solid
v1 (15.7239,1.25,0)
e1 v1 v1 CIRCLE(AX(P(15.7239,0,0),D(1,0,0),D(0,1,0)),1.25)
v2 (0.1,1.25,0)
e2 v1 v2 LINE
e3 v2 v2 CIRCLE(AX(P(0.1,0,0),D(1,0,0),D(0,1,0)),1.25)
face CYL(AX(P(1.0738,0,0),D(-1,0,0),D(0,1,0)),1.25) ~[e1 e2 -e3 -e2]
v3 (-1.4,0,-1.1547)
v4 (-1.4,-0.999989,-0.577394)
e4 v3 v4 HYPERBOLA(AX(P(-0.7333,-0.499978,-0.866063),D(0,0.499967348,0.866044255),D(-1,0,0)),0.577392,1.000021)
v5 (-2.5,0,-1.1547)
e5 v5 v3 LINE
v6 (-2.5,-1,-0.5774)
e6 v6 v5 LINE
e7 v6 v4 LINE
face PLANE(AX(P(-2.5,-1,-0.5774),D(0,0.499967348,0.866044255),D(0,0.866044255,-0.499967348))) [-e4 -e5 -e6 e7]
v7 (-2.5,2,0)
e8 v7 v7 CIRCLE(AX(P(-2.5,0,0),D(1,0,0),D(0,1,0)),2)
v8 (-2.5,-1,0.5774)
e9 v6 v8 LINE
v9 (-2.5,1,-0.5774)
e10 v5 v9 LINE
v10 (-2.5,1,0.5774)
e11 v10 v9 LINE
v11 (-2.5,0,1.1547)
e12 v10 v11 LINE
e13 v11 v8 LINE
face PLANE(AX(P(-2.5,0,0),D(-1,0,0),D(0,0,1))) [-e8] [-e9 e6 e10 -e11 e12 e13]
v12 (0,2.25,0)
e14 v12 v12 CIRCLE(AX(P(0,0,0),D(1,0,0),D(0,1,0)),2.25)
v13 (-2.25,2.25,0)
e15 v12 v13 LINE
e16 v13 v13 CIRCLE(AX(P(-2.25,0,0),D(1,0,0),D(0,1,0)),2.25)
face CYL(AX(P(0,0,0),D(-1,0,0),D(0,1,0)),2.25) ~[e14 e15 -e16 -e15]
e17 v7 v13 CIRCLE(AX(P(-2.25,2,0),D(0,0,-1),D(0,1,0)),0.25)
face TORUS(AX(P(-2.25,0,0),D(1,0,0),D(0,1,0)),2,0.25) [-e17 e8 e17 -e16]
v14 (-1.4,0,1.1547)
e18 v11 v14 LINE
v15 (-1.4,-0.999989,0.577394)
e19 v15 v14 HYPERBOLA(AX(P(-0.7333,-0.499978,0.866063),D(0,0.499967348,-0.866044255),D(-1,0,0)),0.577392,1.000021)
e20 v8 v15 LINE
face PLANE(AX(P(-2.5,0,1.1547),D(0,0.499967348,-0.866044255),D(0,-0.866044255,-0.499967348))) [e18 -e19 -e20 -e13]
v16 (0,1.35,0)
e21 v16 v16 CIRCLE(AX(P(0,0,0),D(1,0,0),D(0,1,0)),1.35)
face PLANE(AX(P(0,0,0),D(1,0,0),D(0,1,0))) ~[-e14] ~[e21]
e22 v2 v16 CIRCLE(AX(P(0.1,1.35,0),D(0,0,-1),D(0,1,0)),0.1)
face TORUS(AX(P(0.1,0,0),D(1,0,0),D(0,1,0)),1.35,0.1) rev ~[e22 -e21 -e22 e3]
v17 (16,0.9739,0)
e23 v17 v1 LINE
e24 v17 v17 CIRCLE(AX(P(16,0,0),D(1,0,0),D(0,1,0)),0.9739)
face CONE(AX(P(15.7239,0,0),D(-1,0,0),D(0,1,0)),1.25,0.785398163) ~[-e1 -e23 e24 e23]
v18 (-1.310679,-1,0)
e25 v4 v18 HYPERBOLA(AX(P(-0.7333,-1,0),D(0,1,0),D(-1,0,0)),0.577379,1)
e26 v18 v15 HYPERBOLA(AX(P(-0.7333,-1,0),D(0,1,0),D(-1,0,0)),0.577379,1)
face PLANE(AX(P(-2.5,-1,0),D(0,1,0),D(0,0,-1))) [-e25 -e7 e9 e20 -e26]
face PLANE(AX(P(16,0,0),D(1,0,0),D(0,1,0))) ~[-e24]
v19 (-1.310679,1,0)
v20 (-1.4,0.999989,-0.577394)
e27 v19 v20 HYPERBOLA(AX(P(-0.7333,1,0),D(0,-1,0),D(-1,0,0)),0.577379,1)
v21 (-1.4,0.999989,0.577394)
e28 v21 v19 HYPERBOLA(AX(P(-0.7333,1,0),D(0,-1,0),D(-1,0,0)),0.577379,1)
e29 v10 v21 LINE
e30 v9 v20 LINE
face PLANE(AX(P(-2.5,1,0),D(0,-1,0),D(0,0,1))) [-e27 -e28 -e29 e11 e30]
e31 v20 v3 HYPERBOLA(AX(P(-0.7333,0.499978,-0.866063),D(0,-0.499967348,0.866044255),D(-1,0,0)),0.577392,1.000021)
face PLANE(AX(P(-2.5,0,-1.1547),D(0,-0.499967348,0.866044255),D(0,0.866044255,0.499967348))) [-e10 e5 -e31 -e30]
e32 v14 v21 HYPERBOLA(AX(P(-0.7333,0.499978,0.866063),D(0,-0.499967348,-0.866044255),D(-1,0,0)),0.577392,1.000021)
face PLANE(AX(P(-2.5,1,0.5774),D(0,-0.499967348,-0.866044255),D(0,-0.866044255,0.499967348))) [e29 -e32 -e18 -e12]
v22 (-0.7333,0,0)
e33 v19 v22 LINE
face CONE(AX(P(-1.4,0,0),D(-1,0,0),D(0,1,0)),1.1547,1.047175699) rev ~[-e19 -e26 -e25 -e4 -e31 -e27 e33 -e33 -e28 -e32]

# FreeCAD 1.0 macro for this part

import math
import FreeCAD as App
import Part
import Sketcher

V = App.Vector
Q = App.Units.Quantity


def edges_at(feature, points):
    """Names of the edges that pass closest to the given points."""
    edges = feature.Shape.Edges
    near = lambda p: min(range(len(edges)), key=lambda i: edges[i].distToShape(Part.Vertex(*p))[0])
    return sorted({f"Edge{near(p) + 1}" for p in points})

doc = App.newDocument("Part")
params = doc.addObject("Spreadsheet::Sheet", "Params")
for row, (alias, value) in enumerate([
    ("sketch1_width", "16 mm"),
    ("sketch1_width2", "2.5 mm"),
    ("sketch1_width3", "1.1 mm"),
    ("sketch1_height", "1 mm"),
    ("sketch1_height2", "1.25 mm"),
    ("revolution_angle", "360 deg"),
    ("fillet_radius", "0.25 mm"),
    ("chamfer_size", "0.2761 mm"),
    ("chamfer_size2", "0.2761 mm"),
    ("fillet2_radius", "0.1 mm"),
], start=1):
    params.set(f"A{row}", alias)
    params.set(f"B{row}", "=" + value)
    params.setAlias(f"B{row}", alias)

body = doc.addObject("PartDesign::Body", "Body")

sketch1 = doc.addObject("Sketcher::SketchObject", "Sketch")
body.addObject(sketch1)
sketch1.AttachmentSupport = (doc.XY_Plane, [""])
sketch1.MapMode = "FlatFace"
sketch1.addGeometry(Part.LineSegment(V(-1.4, 1.2, 0), V(-0.7, 0, 0)), False)
sketch1.addGeometry(Part.LineSegment(V(-0.7, 0, 0), V(16, 0, 0)), False)
sketch1.addGeometry(Part.LineSegment(V(16, 0, 0), V(16, 1.2, 0)), False)
sketch1.addGeometry(Part.LineSegment(V(16, 1.2, 0), V(0, 1.2, 0)), False)
sketch1.addGeometry(Part.LineSegment(V(0, 1.2, 0), V(0, 2.2, 0)), False)
sketch1.addGeometry(Part.LineSegment(V(0, 2.2, 0), V(-2.5, 2.2, 0)), False)
sketch1.addGeometry(Part.LineSegment(V(-2.5, 2.2, 0), V(-2.5, 1.2, 0)), False)
sketch1.addGeometry(Part.LineSegment(V(-2.5, 1.2, 0), V(-1.4, 1.2, 0)), False)
sketch1.addConstraint(Sketcher.Constraint("Coincident", 0, 2, 1, 1))
sketch1.addConstraint(Sketcher.Constraint("Coincident", 1, 2, 2, 1))
sketch1.addConstraint(Sketcher.Constraint("Coincident", 2, 2, 3, 1))
sketch1.addConstraint(Sketcher.Constraint("Coincident", 3, 2, 4, 1))
sketch1.addConstraint(Sketcher.Constraint("Coincident", 4, 2, 5, 1))
sketch1.addConstraint(Sketcher.Constraint("Coincident", 5, 2, 6, 1))
sketch1.addConstraint(Sketcher.Constraint("Coincident", 6, 2, 7, 1))
sketch1.addConstraint(Sketcher.Constraint("Coincident", 7, 2, 0, 1))
sketch1.addConstraint(Sketcher.Constraint("Horizontal", 1))
sketch1.addConstraint(Sketcher.Constraint("Vertical", 2))
sketch1.addConstraint(Sketcher.Constraint("Horizontal", 3))
sketch1.addConstraint(Sketcher.Constraint("Vertical", 4))
sketch1.addConstraint(Sketcher.Constraint("Horizontal", 5))
sketch1.addConstraint(Sketcher.Constraint("Vertical", 6))
sketch1.addConstraint(Sketcher.Constraint("Horizontal", 7))
sketch1.addConstraint(Sketcher.Constraint("PointOnObject", 0, 2, -1))
sketch1.addConstraint(Sketcher.Constraint("PointOnObject", 3, 2, -2))
sketch1.addConstraint(Sketcher.Constraint("DistanceX", 3, 2, 3, 1, Q("16 mm")))
sketch1.addConstraint(Sketcher.Constraint("DistanceX", 5, 2, 5, 1, Q("2.5 mm")))
sketch1.addConstraint(Sketcher.Constraint("DistanceX", 7, 1, 7, 2, Q("1.1 mm")))
sketch1.addConstraint(Sketcher.Constraint("DistanceY", 4, 1, 4, 2, Q("1 mm")))
sketch1.addConstraint(Sketcher.Constraint("DistanceY", 2, 1, 2, 2, Q("1.25 mm")))
sketch1.addConstraint(Sketcher.Constraint("DistanceX", 1, 1, 1, 2, Q("16.7333 mm")))
sketch1.addConstraint(Sketcher.Constraint("DistanceY", 6, 2, 6, 1, Q("1.0953 mm")))
sketch1.setExpression("Constraints[17]", "Params.sketch1_width")
sketch1.setExpression("Constraints[18]", "Params.sketch1_width2")
sketch1.setExpression("Constraints[19]", "Params.sketch1_width3")
sketch1.setExpression("Constraints[20]", "Params.sketch1_height")
sketch1.setExpression("Constraints[21]", "Params.sketch1_height2")
revolution = doc.addObject("PartDesign::Revolution", "Revolution")
body.addObject(revolution)
revolution.Profile = sketch1
revolution.ReferenceAxis = (sketch1, ["H_Axis"])
revolution.setExpression("Angle", "Params.revolution_angle")

sketch2 = doc.addObject("Sketcher::SketchObject", "Sketch001")
body.addObject(sketch2)
sketch2.AttachmentSupport = (doc.YZ_Plane, [""])
sketch2.MapMode = "FlatFace"
sketch2.AttachmentOffset = App.Placement(V(0, 0, -2.5), App.Rotation())
sketch2.addGeometry(Part.LineSegment(V(1, 0.6, 0), V(0, 1.2, 0)), False)
sketch2.addGeometry(Part.ArcOfCircle(Part.Circle(V(0, 0, 0), V(0, 0, 1), 1.2), math.radians(30), math.radians(90)), False)
sketch2.addGeometry(Part.ArcOfCircle(Part.Circle(V(0, 0, 0), V(0, 0, 1), 1.2), math.radians(90), math.radians(150)), False)
sketch2.addGeometry(Part.LineSegment(V(0, 1.2, 0), V(-1, 0.6, 0)), False)
sketch2.addGeometry(Part.ArcOfCircle(Part.Circle(V(0, 0, 0), V(0, 0, 1), 1.2), math.radians(-30), math.radians(30)), False)
sketch2.addGeometry(Part.LineSegment(V(1, 0.6, 0), V(1, -0.6, 0)), False)
sketch2.addGeometry(Part.LineSegment(V(-1, 0.6, 0), V(-1, -0.6, 0)), False)
sketch2.addGeometry(Part.ArcOfCircle(Part.Circle(V(0, 0, 0), V(0, 0, 1), 1.2), math.radians(150), math.radians(210)), False)
sketch2.addGeometry(Part.LineSegment(V(-1, -0.6, 0), V(0, -1.2, 0)), False)
sketch2.addGeometry(Part.ArcOfCircle(Part.Circle(V(0, 0, 0), V(0, 0, 1), 1.2), math.radians(-150), math.radians(-90)), False)
sketch2.addGeometry(Part.ArcOfCircle(Part.Circle(V(0, 0, 0), V(0, 0, 1), 1.2), math.radians(-90), math.radians(-30)), False)
sketch2.addGeometry(Part.LineSegment(V(0, -1.2, 0), V(1, -0.6, 0)), False)
sketch2.addConstraint(Sketcher.Constraint("Coincident", 0, 1, 1, 1))
sketch2.addConstraint(Sketcher.Constraint("Coincident", 1, 2, 0, 2))
sketch2.addConstraint(Sketcher.Constraint("Coincident", 2, 1, 3, 1))
sketch2.addConstraint(Sketcher.Constraint("Coincident", 3, 2, 2, 2))
sketch2.addConstraint(Sketcher.Constraint("Coincident", 4, 1, 5, 2))
sketch2.addConstraint(Sketcher.Constraint("Coincident", 5, 1, 4, 2))
sketch2.addConstraint(Sketcher.Constraint("Coincident", 6, 1, 7, 1))
sketch2.addConstraint(Sketcher.Constraint("Coincident", 7, 2, 6, 2))
sketch2.addConstraint(Sketcher.Constraint("Coincident", 8, 1, 9, 1))
sketch2.addConstraint(Sketcher.Constraint("Coincident", 9, 2, 8, 2))
sketch2.addConstraint(Sketcher.Constraint("Coincident", 10, 1, 11, 1))
sketch2.addConstraint(Sketcher.Constraint("Coincident", 11, 2, 10, 2))
sketch2.addConstraint(Sketcher.Constraint("Vertical", 5))
sketch2.addConstraint(Sketcher.Constraint("Vertical", 6))
sketch2.addConstraint(Sketcher.Constraint("Coincident", 1, 3, -1, 1))
sketch2.addConstraint(Sketcher.Constraint("Coincident", 2, 3, -1, 1))
sketch2.addConstraint(Sketcher.Constraint("Coincident", 4, 3, -1, 1))
sketch2.addConstraint(Sketcher.Constraint("Coincident", 7, 3, -1, 1))
sketch2.addConstraint(Sketcher.Constraint("Coincident", 9, 3, -1, 1))
sketch2.addConstraint(Sketcher.Constraint("Coincident", 10, 3, -1, 1))
sketch2.addConstraint(Sketcher.Constraint("Coincident", 2, 1, 1, 2))
sketch2.addConstraint(Sketcher.Constraint("Coincident", 5, 1, 0, 1))
sketch2.addConstraint(Sketcher.Constraint("Coincident", 6, 1, 3, 2))
sketch2.addConstraint(Sketcher.Constraint("Coincident", 8, 1, 7, 2))
sketch2.addConstraint(Sketcher.Constraint("Coincident", 10, 1, 9, 2))
sketch2.addConstraint(Sketcher.Constraint("PointOnObject", 1, 2, -2))
sketch2.addConstraint(Sketcher.Constraint("PointOnObject", 9, 2, -2))
sketch2.addConstraint(Sketcher.Constraint("Parallel", 0, 8))
sketch2.addConstraint(Sketcher.Constraint("Parallel", 3, 11))
sketch2.addConstraint(Sketcher.Constraint("DistanceX", -1, 1, 0, 1, Q("1 mm")))
sketch2.addConstraint(Sketcher.Constraint("Radius", 1, Q("1.1547 mm")))
pad1 = doc.addObject("PartDesign::Pad", "Pad")
body.addObject(pad1)
pad1.Profile = sketch2
pad1.Type = "UpToFirst"
doc.recompute()

fillet = doc.addObject("PartDesign::Fillet", "Fillet")
body.addObject(fillet)
fillet.Base = (pad1, edges_at(pad1, [(-2.5, -2.25, 0)]))
fillet.setExpression("Radius", "Params.fillet_radius")
doc.recompute()

chamfer = doc.addObject("PartDesign::Chamfer", "Chamfer")
body.addObject(chamfer)
chamfer.Base = (fillet, edges_at(fillet, [(16, -1.25, 0)]))
chamfer.ChamferType = "Two distances"
chamfer.setExpression("Size", "Params.chamfer_size")
chamfer.setExpression("Size2", "Params.chamfer_size2")
doc.recompute()

fillet2 = doc.addObject("PartDesign::Fillet", "Fillet001")
body.addObject(fillet2)
fillet2.Base = (chamfer, edges_at(chamfer, [(0, -1.25, 0)]))
fillet2.setExpression("Radius", "Params.fillet2_radius")

doc.recompute()
